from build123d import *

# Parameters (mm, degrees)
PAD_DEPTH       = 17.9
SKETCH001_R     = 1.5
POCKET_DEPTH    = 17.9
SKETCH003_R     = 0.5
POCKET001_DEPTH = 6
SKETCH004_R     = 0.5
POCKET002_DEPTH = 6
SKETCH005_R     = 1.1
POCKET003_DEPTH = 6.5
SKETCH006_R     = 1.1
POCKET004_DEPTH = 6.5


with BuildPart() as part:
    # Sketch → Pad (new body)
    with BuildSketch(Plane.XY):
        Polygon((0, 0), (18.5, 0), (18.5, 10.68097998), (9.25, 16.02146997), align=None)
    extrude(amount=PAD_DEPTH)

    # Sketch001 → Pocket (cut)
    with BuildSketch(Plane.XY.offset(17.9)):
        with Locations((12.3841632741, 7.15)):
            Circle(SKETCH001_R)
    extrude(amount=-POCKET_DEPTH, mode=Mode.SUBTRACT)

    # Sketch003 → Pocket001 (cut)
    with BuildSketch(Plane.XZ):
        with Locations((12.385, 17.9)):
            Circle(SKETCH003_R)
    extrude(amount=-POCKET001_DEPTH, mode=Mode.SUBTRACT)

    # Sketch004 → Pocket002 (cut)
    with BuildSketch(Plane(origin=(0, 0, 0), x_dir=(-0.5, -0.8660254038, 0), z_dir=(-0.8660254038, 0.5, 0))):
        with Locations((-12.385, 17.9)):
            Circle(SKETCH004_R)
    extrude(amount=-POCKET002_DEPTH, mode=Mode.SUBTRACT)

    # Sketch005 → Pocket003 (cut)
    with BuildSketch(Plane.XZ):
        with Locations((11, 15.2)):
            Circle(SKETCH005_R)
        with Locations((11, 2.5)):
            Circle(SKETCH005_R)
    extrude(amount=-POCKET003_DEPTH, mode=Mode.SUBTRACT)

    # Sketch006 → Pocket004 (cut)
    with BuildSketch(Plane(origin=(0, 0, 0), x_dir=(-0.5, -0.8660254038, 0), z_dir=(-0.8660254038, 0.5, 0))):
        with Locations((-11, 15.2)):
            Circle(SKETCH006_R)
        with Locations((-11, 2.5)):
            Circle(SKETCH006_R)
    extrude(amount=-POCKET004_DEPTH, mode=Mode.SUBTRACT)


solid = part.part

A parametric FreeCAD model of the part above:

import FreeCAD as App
import Part
import Sketcher
Q = App.Units.Quantity


def add_polygon(sketch, points):
    """Adds a closed chain of lines whose ends are joined by coincident constraints."""
    first, n = sketch.GeometryCount, len(points)
    for a, b in zip(points, points[1:] + points[:1]):
        sketch.addGeometry(Part.LineSegment(App.Vector(*a, 0), App.Vector(*b, 0)), False)
    for i in range(n):
        sketch.addConstraint(Sketcher.Constraint("Coincident", first + i, 2, first + (i + 1) % n, 1))

doc = App.newDocument("Part")
body = doc.addObject("PartDesign::Body", "Body")

# Sketch on XY plane
sketch1 = body.newObject("Sketcher::SketchObject", "Sketch")
sketch1.AttachmentSupport = (doc.getObject("XY_Plane"), [""])
sketch1.MapMode = "FlatFace"
add_polygon(sketch1, [(0, 0), (18.5, 0), (18.5, 10.68098), (9.25, 16.02147)])  # lines 0-3
sketch1.addConstraint(Sketcher.Constraint("Horizontal", 0))
sketch1.addConstraint(Sketcher.Constraint("Vertical", 1))
sketch1.addConstraint(Sketcher.Constraint("Coincident", 3, 2, -1, 1))
sketch1.addConstraint(Sketcher.Constraint("Perpendicular", 2, 3))
sketch1.addConstraint(Sketcher.Constraint("Angle", 2, Q("150 deg")))
sketch1.addConstraint(Sketcher.Constraint("DistanceX", 0, 1, 0, 2, 18.5))
sketch1.addConstraint(Sketcher.Constraint("Distance", 3, 18.5))
pad1 = body.newObject("PartDesign::Pad", "Pad")
pad1.Profile = sketch1
pad1.Length = 17.9

# Sketch on XY plane
sketch2 = body.newObject("Sketcher::SketchObject", "Sketch001")
sketch2.AttachmentSupport = (doc.getObject("XY_Plane"), [""])
sketch2.MapMode = "FlatFace"
sketch2.AttachmentOffset = App.Placement(App.Vector(0, 0, 17.9), App.Rotation())
sketch2.addGeometry(Part.Circle(App.Vector(12.384163, 7.15, 0), App.Vector(0, 0, 1), 1.5), False)
sketch2.addConstraint(Sketcher.Constraint("Diameter", 0, 3.0))
sketch2.addConstraint(Sketcher.Constraint("DistanceY", -1, 1, 0, 3, 7.15))
sketch2.addConstraint(Sketcher.Constraint("DistanceX", -1, 1, 0, 3, 12.384163))
pocket1 = body.newObject("PartDesign::Pocket", "Pocket")
pocket1.Profile = sketch2
pocket1.Length = 17.9

# Sketch on XZ plane
sketch3 = body.newObject("Sketcher::SketchObject", "Sketch002")
sketch3.AttachmentSupport = (doc.getObject("XZ_Plane"), [""])
sketch3.MapMode = "FlatFace"
sketch3.addGeometry(Part.Circle(App.Vector(12.385, 17.9, 0), App.Vector(0, 0, 1), 0.5), False)
sketch3.addConstraint(Sketcher.Constraint("Diameter", 0, 1.0))
sketch3.addConstraint(Sketcher.Constraint("DistanceY", -1, 1, 0, 3, 17.9))
sketch3.addConstraint(Sketcher.Constraint("DistanceX", -1, 1, 0, 3, 12.385))
pocket2 = body.newObject("PartDesign::Pocket", "Pocket001")
pocket2.Profile = sketch3
pocket2.Length = 6

# Sketch on an angled plane
sketch4 = body.newObject("Sketcher::SketchObject", "Sketch003")
sketch4.Placement = App.Placement(App.Vector(0, 0, 0), App.Rotation(App.Vector(-0.5, -0.866025404, 0), App.Vector(0, 0, 1), App.Vector(-0.866025404, 0.5, 0), "ZXY"))
sketch4.addGeometry(Part.Circle(App.Vector(-12.385, 17.9, 0), App.Vector(0, 0, 1), 0.5), False)
sketch4.addConstraint(Sketcher.Constraint("Diameter", 0, 1.0))
sketch4.addConstraint(Sketcher.Constraint("DistanceY", -1, 1, 0, 3, 17.9))
sketch4.addConstraint(Sketcher.Constraint("DistanceX", 0, 3, -1, 1, 12.385))
pocket3 = body.newObject("PartDesign::Pocket", "Pocket002")
pocket3.Profile = sketch4
pocket3.Length = 6

# Sketch on XZ plane
sketch5 = body.newObject("Sketcher::SketchObject", "Sketch004")
sketch5.AttachmentSupport = (doc.getObject("XZ_Plane"), [""])
sketch5.MapMode = "FlatFace"
sketch5.addGeometry(Part.Circle(App.Vector(11, 15.2, 0), App.Vector(0, 0, 1), 1.1), False)
sketch5.addGeometry(Part.Circle(App.Vector(11, 2.5, 0), App.Vector(0, 0, 1), 1.1), False)
sketch5.addConstraint(Sketcher.Constraint("Equal", 0, 1))
sketch5.addConstraint(Sketcher.Constraint("Vertical", 0, 3, 1, 3))
sketch5.addConstraint(Sketcher.Constraint("Diameter", 0, 2.2))
sketch5.addConstraint(Sketcher.Constraint("DistanceX", -1, 1, 0, 3, 11.0))
sketch5.addConstraint(Sketcher.Constraint("DistanceY", -1, 1, 0, 3, 15.2))
sketch5.addConstraint(Sketcher.Constraint("DistanceY", -1, 1, 1, 3, 2.5))
pocket4 = body.newObject("PartDesign::Pocket", "Pocket003")
pocket4.Profile = sketch5
pocket4.Length = 6.5

# Sketch on an angled plane
sketch6 = body.newObject("Sketcher::SketchObject", "Sketch005")
sketch6.Placement = App.Placement(App.Vector(0, 0, 0), App.Rotation(App.Vector(-0.5, -0.866025404, 0), App.Vector(0, 0, 1), App.Vector(-0.866025404, 0.5, 0), "ZXY"))
sketch6.addGeometry(Part.Circle(App.Vector(-11, 15.2, 0), App.Vector(0, 0, 1), 1.1), False)
sketch6.addGeometry(Part.Circle(App.Vector(-11, 2.5, 0), App.Vector(0, 0, 1), 1.1), False)
sketch6.addConstraint(Sketcher.Constraint("Equal", 0, 1))
sketch6.addConstraint(Sketcher.Constraint("Vertical", 0, 3, 1, 3))
sketch6.addConstraint(Sketcher.Constraint("Diameter", 0, 2.2))
sketch6.addConstraint(Sketcher.Constraint("DistanceX", 0, 3, -1, 1, 11.0))
sketch6.addConstraint(Sketcher.Constraint("DistanceY", -1, 1, 0, 3, 15.2))
sketch6.addConstraint(Sketcher.Constraint("DistanceY", -1, 1, 1, 3, 2.5))
pocket5 = body.newObject("PartDesign::Pocket", "Pocket004")
pocket5.Profile = sketch6
pocket5.Length = 6.5

doc.recompute()
